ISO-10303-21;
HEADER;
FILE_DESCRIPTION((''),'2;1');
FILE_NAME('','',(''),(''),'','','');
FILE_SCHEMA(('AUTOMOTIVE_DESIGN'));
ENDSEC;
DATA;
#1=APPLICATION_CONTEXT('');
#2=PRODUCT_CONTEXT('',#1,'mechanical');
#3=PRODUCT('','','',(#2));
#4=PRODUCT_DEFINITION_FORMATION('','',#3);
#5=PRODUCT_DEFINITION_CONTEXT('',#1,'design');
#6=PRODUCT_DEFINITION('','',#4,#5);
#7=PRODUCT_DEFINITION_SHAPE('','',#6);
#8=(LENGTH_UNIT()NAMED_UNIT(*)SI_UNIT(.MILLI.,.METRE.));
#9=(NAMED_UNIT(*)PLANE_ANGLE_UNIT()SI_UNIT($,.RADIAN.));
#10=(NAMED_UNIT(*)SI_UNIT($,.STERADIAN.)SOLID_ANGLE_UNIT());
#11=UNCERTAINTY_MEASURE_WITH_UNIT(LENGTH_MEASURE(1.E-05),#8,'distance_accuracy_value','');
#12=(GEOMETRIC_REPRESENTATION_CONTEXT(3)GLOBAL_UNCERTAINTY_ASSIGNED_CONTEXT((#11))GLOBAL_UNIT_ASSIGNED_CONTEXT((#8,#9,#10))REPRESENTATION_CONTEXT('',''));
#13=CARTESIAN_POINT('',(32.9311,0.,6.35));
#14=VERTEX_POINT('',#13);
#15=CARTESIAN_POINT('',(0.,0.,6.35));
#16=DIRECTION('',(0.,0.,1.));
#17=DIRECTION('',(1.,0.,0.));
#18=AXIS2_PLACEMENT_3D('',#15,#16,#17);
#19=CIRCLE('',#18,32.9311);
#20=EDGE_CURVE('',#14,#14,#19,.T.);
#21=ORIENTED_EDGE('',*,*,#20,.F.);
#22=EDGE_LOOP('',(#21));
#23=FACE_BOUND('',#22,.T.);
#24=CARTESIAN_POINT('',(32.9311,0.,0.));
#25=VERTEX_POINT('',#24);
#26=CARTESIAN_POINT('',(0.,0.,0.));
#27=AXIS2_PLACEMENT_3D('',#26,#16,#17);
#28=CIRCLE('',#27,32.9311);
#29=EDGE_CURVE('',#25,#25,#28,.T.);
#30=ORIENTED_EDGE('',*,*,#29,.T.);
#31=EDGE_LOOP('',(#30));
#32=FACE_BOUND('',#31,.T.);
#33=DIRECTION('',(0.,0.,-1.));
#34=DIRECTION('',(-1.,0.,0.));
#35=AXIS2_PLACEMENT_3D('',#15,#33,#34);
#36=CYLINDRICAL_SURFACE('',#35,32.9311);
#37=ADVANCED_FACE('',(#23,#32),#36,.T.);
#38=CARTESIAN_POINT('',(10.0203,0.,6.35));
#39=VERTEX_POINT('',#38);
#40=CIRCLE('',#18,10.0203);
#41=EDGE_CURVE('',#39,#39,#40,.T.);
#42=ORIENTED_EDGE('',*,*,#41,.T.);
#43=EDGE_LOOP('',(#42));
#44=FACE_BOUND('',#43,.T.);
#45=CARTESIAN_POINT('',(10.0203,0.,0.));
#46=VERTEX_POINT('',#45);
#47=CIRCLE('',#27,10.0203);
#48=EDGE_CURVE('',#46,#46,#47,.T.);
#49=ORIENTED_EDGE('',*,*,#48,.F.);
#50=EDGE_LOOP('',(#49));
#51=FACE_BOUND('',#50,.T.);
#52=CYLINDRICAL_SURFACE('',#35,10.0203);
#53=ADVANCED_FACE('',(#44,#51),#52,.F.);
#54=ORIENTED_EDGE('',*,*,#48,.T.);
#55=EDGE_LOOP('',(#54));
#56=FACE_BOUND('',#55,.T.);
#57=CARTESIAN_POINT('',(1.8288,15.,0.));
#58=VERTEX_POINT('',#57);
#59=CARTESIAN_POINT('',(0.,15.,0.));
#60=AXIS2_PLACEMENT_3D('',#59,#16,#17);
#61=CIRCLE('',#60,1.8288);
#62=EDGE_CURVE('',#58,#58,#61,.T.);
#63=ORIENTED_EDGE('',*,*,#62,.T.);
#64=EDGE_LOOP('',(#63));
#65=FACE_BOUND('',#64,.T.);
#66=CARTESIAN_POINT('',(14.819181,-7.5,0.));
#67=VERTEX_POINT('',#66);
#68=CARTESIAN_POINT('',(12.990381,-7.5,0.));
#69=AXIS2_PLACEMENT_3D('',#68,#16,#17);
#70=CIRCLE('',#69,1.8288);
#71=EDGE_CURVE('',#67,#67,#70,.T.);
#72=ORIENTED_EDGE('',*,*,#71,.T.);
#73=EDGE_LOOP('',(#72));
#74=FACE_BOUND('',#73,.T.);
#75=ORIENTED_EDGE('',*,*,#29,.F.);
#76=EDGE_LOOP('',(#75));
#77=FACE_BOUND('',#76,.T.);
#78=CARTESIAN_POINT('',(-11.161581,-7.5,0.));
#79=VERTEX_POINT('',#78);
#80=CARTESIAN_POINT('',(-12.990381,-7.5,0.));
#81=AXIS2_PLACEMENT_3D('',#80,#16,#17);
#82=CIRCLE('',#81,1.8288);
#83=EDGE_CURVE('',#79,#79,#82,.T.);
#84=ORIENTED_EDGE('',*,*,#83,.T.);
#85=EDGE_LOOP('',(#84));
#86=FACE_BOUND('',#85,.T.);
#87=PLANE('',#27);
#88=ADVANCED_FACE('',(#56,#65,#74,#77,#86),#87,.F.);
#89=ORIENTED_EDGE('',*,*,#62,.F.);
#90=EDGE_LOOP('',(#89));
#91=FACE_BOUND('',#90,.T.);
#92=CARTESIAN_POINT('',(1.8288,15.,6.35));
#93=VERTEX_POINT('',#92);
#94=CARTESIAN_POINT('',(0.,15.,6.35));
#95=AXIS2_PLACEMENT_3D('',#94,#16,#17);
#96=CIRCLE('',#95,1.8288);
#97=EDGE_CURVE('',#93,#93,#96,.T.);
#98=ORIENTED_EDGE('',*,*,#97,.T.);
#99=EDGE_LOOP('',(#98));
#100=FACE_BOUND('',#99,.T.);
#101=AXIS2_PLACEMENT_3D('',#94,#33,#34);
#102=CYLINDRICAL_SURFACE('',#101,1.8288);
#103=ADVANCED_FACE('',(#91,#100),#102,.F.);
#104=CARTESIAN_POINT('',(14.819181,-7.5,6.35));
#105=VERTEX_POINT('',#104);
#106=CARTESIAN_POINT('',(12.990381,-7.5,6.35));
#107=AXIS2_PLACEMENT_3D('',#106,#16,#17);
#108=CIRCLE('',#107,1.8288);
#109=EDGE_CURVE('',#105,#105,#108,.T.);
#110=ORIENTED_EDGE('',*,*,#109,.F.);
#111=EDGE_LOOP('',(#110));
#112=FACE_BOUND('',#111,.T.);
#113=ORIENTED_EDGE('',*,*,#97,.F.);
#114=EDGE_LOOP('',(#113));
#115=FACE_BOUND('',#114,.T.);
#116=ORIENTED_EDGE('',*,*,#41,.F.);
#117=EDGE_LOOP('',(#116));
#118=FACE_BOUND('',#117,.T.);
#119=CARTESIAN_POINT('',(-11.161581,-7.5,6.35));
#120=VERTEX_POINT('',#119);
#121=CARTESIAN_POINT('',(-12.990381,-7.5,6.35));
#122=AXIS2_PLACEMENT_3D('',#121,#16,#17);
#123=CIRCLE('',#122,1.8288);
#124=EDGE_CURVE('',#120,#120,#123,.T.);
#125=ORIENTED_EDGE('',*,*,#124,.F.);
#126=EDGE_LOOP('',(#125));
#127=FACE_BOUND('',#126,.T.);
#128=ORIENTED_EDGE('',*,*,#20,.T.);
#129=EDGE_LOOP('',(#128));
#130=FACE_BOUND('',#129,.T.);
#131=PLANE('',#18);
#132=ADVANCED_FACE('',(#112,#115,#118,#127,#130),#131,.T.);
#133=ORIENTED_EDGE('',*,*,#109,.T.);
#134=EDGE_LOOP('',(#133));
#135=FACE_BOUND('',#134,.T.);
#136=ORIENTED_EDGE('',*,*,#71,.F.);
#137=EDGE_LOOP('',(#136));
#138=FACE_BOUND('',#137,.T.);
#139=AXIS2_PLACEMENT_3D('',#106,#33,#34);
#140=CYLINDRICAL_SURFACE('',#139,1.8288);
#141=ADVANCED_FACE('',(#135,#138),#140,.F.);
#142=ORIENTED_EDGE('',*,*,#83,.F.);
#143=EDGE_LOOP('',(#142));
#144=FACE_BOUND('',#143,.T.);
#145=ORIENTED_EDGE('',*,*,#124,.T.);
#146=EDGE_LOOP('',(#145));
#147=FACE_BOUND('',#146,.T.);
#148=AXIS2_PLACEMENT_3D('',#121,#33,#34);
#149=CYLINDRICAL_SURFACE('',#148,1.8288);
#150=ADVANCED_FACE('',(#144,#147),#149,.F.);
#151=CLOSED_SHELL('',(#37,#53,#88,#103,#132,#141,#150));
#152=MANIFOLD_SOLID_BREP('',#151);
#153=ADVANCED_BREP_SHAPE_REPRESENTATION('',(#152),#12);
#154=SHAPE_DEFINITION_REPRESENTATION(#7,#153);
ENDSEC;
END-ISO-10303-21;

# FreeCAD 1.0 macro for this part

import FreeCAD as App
import Part
import Sketcher

V = App.Vector
Q = App.Units.Quantity

doc = App.newDocument("Part")
body = doc.addObject("PartDesign::Body", "Body")

sketch1 = doc.addObject("Sketcher::SketchObject", "Sketch")
body.addObject(sketch1)
sketch1.AttachmentSupport = (doc.XY_Plane, [""])
sketch1.MapMode = "FlatFace"
sketch1.addGeometry(Part.Circle(V(0, 0, 0), V(0, 0, 1), 32.9), False)
sketch1.addGeometry(Part.Circle(V(-13, -7.5, 0), V(0, 0, 1), 1.8), False)
sketch1.addGeometry(Part.Circle(V(0, 0, 0), V(0, 0, 1), 10), False)
sketch1.addGeometry(Part.Circle(V(13, -7.5, 0), V(0, 0, 1), 1.8), False)
sketch1.addGeometry(Part.Circle(V(0, 15, 0), V(0, 0, 1), 1.8), False)
sketch1.addConstraint(Sketcher.Constraint("Coincident", 0, 3, -1, 1))
sketch1.addConstraint(Sketcher.Constraint("Coincident", 2, 3, -1, 1))
sketch1.addConstraint(Sketcher.Constraint("Equal", 1, 3))
sketch1.addConstraint(Sketcher.Constraint("Equal", 3, 4))
sketch1.addConstraint(Sketcher.Constraint("Symmetric", 1, 3, 3, 3, -2))
sketch1.addConstraint(Sketcher.Constraint("PointOnObject", 4, 3, -2))
sketch1.addConstraint(Sketcher.Constraint("Diameter", 0, Q("2.593 in")))
sketch1.addConstraint(Sketcher.Constraint("Diameter", 1, Q("0.144 in")))
sketch1.addConstraint(Sketcher.Constraint("Diameter", 2, Q("0.789 in")))
sketch1.addConstraint(Sketcher.Constraint("DistanceY", 1, 3, -1, 1, Q("7.5 mm")))
sketch1.addConstraint(Sketcher.Constraint("DistanceY", -1, 1, 4, 3, Q("15 mm")))
sketch1.addConstraint(Sketcher.Constraint("DistanceX", 1, 3, -1, 1, Q("12.990381 mm")))
pad1 = doc.addObject("PartDesign::Pad", "Pad")
body.addObject(pad1)
pad1.Profile = sketch1
pad1.Length = Q("0.25 in")

doc.recompute()
